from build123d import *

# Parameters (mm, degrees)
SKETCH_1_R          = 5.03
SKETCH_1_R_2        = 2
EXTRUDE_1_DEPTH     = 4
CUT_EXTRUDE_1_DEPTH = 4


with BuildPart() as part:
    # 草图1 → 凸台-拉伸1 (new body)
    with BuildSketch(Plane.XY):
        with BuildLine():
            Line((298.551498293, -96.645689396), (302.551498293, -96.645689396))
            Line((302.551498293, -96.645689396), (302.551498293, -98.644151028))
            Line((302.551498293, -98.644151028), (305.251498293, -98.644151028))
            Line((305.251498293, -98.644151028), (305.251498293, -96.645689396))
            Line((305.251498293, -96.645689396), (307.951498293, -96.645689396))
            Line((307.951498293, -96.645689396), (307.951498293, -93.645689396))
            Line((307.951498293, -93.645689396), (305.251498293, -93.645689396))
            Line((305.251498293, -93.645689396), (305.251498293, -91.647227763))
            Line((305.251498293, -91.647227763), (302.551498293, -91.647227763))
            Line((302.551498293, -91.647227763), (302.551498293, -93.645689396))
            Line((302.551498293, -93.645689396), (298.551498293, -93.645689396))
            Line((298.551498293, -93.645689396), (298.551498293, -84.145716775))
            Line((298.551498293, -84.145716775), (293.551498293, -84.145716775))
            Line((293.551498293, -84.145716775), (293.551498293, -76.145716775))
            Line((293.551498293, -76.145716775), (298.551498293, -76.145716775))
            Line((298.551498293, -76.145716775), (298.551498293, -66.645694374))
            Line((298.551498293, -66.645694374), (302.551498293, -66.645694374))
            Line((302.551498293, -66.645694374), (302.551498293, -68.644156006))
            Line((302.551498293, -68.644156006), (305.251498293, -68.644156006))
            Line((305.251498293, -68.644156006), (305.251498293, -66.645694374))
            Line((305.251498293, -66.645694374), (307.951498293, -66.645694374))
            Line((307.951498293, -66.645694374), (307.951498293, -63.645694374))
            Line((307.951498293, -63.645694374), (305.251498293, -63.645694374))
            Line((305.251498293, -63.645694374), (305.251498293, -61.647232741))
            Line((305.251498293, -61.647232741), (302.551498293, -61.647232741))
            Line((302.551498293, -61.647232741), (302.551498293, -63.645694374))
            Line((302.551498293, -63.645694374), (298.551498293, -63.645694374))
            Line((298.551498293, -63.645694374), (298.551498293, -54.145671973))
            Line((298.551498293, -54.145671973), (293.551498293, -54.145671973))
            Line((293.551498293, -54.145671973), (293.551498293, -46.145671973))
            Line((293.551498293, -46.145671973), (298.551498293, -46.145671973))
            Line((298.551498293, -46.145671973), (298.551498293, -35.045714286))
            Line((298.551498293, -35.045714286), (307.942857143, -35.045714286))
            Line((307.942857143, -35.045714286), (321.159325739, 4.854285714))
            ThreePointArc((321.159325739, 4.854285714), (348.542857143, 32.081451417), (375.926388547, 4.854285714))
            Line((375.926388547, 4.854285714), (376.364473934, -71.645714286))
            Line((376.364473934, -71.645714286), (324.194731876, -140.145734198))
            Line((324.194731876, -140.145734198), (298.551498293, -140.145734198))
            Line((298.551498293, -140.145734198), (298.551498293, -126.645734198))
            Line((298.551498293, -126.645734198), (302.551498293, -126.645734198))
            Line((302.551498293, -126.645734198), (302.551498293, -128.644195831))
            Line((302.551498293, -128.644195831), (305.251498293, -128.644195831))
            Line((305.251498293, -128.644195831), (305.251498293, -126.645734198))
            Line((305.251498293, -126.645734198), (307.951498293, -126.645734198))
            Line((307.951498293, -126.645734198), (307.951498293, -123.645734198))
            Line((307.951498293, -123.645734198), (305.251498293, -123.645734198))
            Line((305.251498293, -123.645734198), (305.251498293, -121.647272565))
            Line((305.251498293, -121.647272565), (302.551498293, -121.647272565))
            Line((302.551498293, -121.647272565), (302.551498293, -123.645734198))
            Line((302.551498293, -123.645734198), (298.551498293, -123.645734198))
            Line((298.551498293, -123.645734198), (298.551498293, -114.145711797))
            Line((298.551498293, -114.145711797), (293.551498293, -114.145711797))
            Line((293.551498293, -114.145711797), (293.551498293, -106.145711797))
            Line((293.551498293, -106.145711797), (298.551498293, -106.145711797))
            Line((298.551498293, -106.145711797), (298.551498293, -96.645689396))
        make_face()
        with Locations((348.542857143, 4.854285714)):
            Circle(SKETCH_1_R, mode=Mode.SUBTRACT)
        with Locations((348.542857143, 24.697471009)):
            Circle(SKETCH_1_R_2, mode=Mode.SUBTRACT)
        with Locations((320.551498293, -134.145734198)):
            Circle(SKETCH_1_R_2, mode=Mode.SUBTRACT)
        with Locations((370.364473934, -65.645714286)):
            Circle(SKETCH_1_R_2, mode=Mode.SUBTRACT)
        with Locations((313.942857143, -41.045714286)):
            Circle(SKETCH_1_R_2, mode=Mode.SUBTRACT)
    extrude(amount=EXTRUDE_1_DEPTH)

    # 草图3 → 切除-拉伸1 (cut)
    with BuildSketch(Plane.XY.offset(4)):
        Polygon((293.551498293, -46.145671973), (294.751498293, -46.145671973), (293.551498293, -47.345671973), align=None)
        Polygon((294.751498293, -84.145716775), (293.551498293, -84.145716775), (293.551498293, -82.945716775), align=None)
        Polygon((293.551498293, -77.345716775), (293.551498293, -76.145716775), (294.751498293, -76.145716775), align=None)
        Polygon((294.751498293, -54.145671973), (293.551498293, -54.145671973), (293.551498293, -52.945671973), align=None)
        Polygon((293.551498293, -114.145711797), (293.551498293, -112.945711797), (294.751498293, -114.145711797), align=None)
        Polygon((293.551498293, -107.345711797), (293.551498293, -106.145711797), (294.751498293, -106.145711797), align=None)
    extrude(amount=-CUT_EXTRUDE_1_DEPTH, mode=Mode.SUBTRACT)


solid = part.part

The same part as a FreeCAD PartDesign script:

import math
import FreeCAD as App
import Part
import Sketcher

V = App.Vector

doc = App.newDocument("Part")
body = doc.addObject("PartDesign::Body", "Body")

sketch1 = body.newObject("Sketcher::SketchObject", "Sketch")
sketch1.AttachmentSupport = (doc.getObject("XY_Plane"), [""])
sketch1.MapMode = "FlatFace"
sketch1.addGeometry([
    Part.LineSegment(V(302.551498, -96.645689, 0), V(298.551498, -96.645689, 0)),
    Part.LineSegment(V(298.551498, -96.645689, 0), V(298.551498, -106.145712, 0)),
    Part.LineSegment(V(298.551498, -106.145712, 0), V(293.551498, -106.145712, 0)),
    Part.LineSegment(V(293.551498, -106.145712, 0), V(293.551498, -114.145712, 0)),
    Part.LineSegment(V(293.551498, -114.145712, 0), V(298.551498, -114.145712, 0)),
    Part.LineSegment(V(298.551498, -114.145712, 0), V(298.551498, -123.645734, 0)),
    Part.LineSegment(V(298.551498, -123.645734, 0), V(302.551498, -123.645734, 0)),
    Part.LineSegment(V(302.551498, -123.645734, 0), V(302.551498, -121.647273, 0)),
    Part.LineSegment(V(302.551498, -121.647273, 0), V(305.251498, -121.647273, 0)),
    Part.LineSegment(V(305.251498, -121.647273, 0), V(305.251498, -123.645734, 0)),
    Part.LineSegment(V(305.251498, -123.645734, 0), V(307.951498, -123.645734, 0)),
    Part.LineSegment(V(307.951498, -123.645734, 0), V(307.951498, -126.645734, 0)),
    Part.LineSegment(V(307.951498, -126.645734, 0), V(305.251498, -126.645734, 0)),
    Part.LineSegment(V(305.251498, -126.645734, 0), V(305.251498, -128.644196, 0)),
    Part.LineSegment(V(305.251498, -128.644196, 0), V(302.551498, -128.644196, 0)),
    Part.LineSegment(V(302.551498, -128.644196, 0), V(302.551498, -126.645734, 0)),
    Part.LineSegment(V(302.551498, -126.645734, 0), V(298.551498, -126.645734, 0)),
    Part.LineSegment(V(298.551498, -126.645734, 0), V(298.551498, -140.145734, 0)),
    Part.LineSegment(V(298.551498, -140.145734, 0), V(324.194732, -140.145734, 0)),
    Part.LineSegment(V(324.194732, -140.145734, 0), V(376.364474, -71.645714, 0)),
    Part.LineSegment(V(376.364474, -71.645714, 0), V(375.926389, 4.854286, 0)),
    Part.ArcOfCircle(Part.Circle(V(348.542857, 4.697471, 0), V(0, 0, 1), 27.38398), math.radians(0.328107), math.radians(179.671893)),
    Part.LineSegment(V(321.159326, 4.854286, 0), V(307.942857, -35.045714, 0)),
    Part.LineSegment(V(307.942857, -35.045714, 0), V(298.551498, -35.045714, 0)),
    Part.LineSegment(V(298.551498, -35.045714, 0), V(298.551498, -46.145672, 0)),
    Part.LineSegment(V(298.551498, -46.145672, 0), V(293.551498, -46.145672, 0)),
    Part.LineSegment(V(293.551498, -46.145672, 0), V(293.551498, -54.145672, 0)),
    Part.LineSegment(V(293.551498, -54.145672, 0), V(298.551498, -54.145672, 0)),
    Part.LineSegment(V(298.551498, -54.145672, 0), V(298.551498, -63.645694, 0)),
    Part.LineSegment(V(298.551498, -63.645694, 0), V(302.551498, -63.645694, 0)),
    Part.LineSegment(V(302.551498, -63.645694, 0), V(302.551498, -61.647233, 0)),
    Part.LineSegment(V(302.551498, -61.647233, 0), V(305.251498, -61.647233, 0)),
    Part.LineSegment(V(305.251498, -61.647233, 0), V(305.251498, -63.645694, 0)),
    Part.LineSegment(V(305.251498, -63.645694, 0), V(307.951498, -63.645694, 0)),
    Part.LineSegment(V(307.951498, -63.645694, 0), V(307.951498, -66.645694, 0)),
    Part.LineSegment(V(307.951498, -66.645694, 0), V(305.251498, -66.645694, 0)),
    Part.LineSegment(V(305.251498, -66.645694, 0), V(305.251498, -68.644156, 0)),
    Part.LineSegment(V(305.251498, -68.644156, 0), V(302.551498, -68.644156, 0)),
    Part.LineSegment(V(302.551498, -68.644156, 0), V(302.551498, -66.645694, 0)),
    Part.LineSegment(V(302.551498, -66.645694, 0), V(298.551498, -66.645694, 0)),
    Part.LineSegment(V(298.551498, -66.645694, 0), V(298.551498, -76.145717, 0)),
    Part.LineSegment(V(298.551498, -76.145717, 0), V(293.551498, -76.145717, 0)),
    Part.LineSegment(V(293.551498, -76.145717, 0), V(293.551498, -84.145717, 0)),
    Part.LineSegment(V(293.551498, -84.145717, 0), V(298.551498, -84.145717, 0)),
    Part.LineSegment(V(298.551498, -84.145717, 0), V(298.551498, -93.645689, 0)),
    Part.LineSegment(V(298.551498, -93.645689, 0), V(302.551498, -93.645689, 0)),
    Part.LineSegment(V(302.551498, -93.645689, 0), V(302.551498, -91.647228, 0)),
    Part.LineSegment(V(302.551498, -91.647228, 0), V(305.251498, -91.647228, 0)),
    Part.LineSegment(V(305.251498, -91.647228, 0), V(305.251498, -93.645689, 0)),
    Part.LineSegment(V(305.251498, -93.645689, 0), V(307.951498, -93.645689, 0)),
    Part.LineSegment(V(307.951498, -93.645689, 0), V(307.951498, -96.645689, 0)),
    Part.LineSegment(V(307.951498, -96.645689, 0), V(305.251498, -96.645689, 0)),
    Part.LineSegment(V(305.251498, -96.645689, 0), V(305.251498, -98.644151, 0)),
    Part.LineSegment(V(305.251498, -98.644151, 0), V(302.551498, -98.644151, 0)),
    Part.LineSegment(V(302.551498, -98.644151, 0), V(302.551498, -96.645689, 0)),
    Part.Circle(V(370.364474, -65.645714, 0), V(0, 0, 1), 2),
    Part.Circle(V(320.551498, -134.145734, 0), V(0, 0, 1), 2),
    Part.Circle(V(348.542857, 4.854286, 0), V(0, 0, 1), 5.03),
    Part.Circle(V(348.542857, 24.697471, 0), V(0, 0, 1), 2),
    Part.Circle(V(313.942857, -41.045714, 0), V(0, 0, 1), 2),
], False)
sketch1.addConstraint([
    Sketcher.Constraint("Coincident", 0, 2, 1, 1),
    Sketcher.Constraint("Coincident", 1, 2, 2, 1),
    Sketcher.Constraint("Coincident", 2, 2, 3, 1),
    Sketcher.Constraint("Coincident", 3, 2, 4, 1),
    Sketcher.Constraint("Coincident", 4, 2, 5, 1),
    Sketcher.Constraint("Coincident", 5, 2, 6, 1),
    Sketcher.Constraint("Coincident", 6, 2, 7, 1),
    Sketcher.Constraint("Coincident", 7, 2, 8, 1),
    Sketcher.Constraint("Coincident", 8, 2, 9, 1),
    Sketcher.Constraint("Coincident", 9, 2, 10, 1),
    Sketcher.Constraint("Coincident", 10, 2, 11, 1),
    Sketcher.Constraint("Coincident", 11, 2, 12, 1),
    Sketcher.Constraint("Coincident", 12, 2, 13, 1),
    Sketcher.Constraint("Coincident", 13, 2, 14, 1),
    Sketcher.Constraint("Coincident", 14, 2, 15, 1),
    Sketcher.Constraint("Coincident", 15, 2, 16, 1),
    Sketcher.Constraint("Coincident", 16, 2, 17, 1),
    Sketcher.Constraint("Coincident", 17, 2, 18, 1),
    Sketcher.Constraint("Coincident", 18, 2, 19, 1),
    Sketcher.Constraint("Coincident", 19, 2, 20, 1),
    Sketcher.Constraint("Tangent", 20, 2, 21, 1),
    Sketcher.Constraint("Coincident", 21, 2, 22, 1),
    Sketcher.Constraint("Coincident", 22, 2, 23, 1),
    Sketcher.Constraint("Coincident", 23, 2, 24, 1),
    Sketcher.Constraint("Coincident", 24, 2, 25, 1),
    Sketcher.Constraint("Coincident", 25, 2, 26, 1),
    Sketcher.Constraint("Coincident", 26, 2, 27, 1),
    Sketcher.Constraint("Coincident", 27, 2, 28, 1),
    Sketcher.Constraint("Coincident", 28, 2, 29, 1),
    Sketcher.Constraint("Coincident", 29, 2, 30, 1),
    Sketcher.Constraint("Coincident", 30, 2, 31, 1),
    Sketcher.Constraint("Coincident", 31, 2, 32, 1),
    Sketcher.Constraint("Coincident", 32, 2, 33, 1),
    Sketcher.Constraint("Coincident", 33, 2, 34, 1),
    Sketcher.Constraint("Coincident", 34, 2, 35, 1),
    Sketcher.Constraint("Coincident", 35, 2, 36, 1),
    Sketcher.Constraint("Coincident", 36, 2, 37, 1),
    Sketcher.Constraint("Coincident", 37, 2, 38, 1),
    Sketcher.Constraint("Coincident", 38, 2, 39, 1),
    Sketcher.Constraint("Coincident", 39, 2, 40, 1),
    Sketcher.Constraint("Coincident", 40, 2, 41, 1),
    Sketcher.Constraint("Coincident", 41, 2, 42, 1),
    Sketcher.Constraint("Coincident", 42, 2, 43, 1),
    Sketcher.Constraint("Coincident", 43, 2, 44, 1),
    Sketcher.Constraint("Coincident", 44, 2, 45, 1),
    Sketcher.Constraint("Coincident", 45, 2, 46, 1),
    Sketcher.Constraint("Coincident", 46, 2, 47, 1),
    Sketcher.Constraint("Coincident", 47, 2, 48, 1),
    Sketcher.Constraint("Coincident", 48, 2, 49, 1),
    Sketcher.Constraint("Coincident", 49, 2, 50, 1),
    Sketcher.Constraint("Coincident", 50, 2, 51, 1),
    Sketcher.Constraint("Coincident", 51, 2, 52, 1),
    Sketcher.Constraint("Coincident", 52, 2, 53, 1),
    Sketcher.Constraint("Coincident", 53, 2, 54, 1),
    Sketcher.Constraint("Coincident", 54, 2, 0, 1),
    Sketcher.Constraint("Horizontal", 0),
    Sketcher.Constraint("Vertical", 1),
    Sketcher.Constraint("Horizontal", 2),
    Sketcher.Constraint("Vertical", 3),
    Sketcher.Constraint("Horizontal", 4),
    Sketcher.Constraint("Vertical", 5),
    Sketcher.Constraint("Horizontal", 6),
    Sketcher.Constraint("Vertical", 7),
    Sketcher.Constraint("Horizontal", 8),
    Sketcher.Constraint("Vertical", 9),
    Sketcher.Constraint("Horizontal", 10),
    Sketcher.Constraint("Vertical", 11),
    Sketcher.Constraint("Horizontal", 12),
    Sketcher.Constraint("Vertical", 13),
    Sketcher.Constraint("Horizontal", 14),
    Sketcher.Constraint("Vertical", 15),
    Sketcher.Constraint("Horizontal", 16),
    Sketcher.Constraint("Vertical", 17),
    Sketcher.Constraint("Horizontal", 18),
    Sketcher.Constraint("Horizontal", 23),
    Sketcher.Constraint("Vertical", 24),
    Sketcher.Constraint("Horizontal", 25),
    Sketcher.Constraint("Vertical", 26),
    Sketcher.Constraint("Horizontal", 27),
    Sketcher.Constraint("Vertical", 28),
    Sketcher.Constraint("Horizontal", 29),
    Sketcher.Constraint("Vertical", 30),
    Sketcher.Constraint("Horizontal", 31),
    Sketcher.Constraint("Vertical", 32),
    Sketcher.Constraint("Horizontal", 33),
    Sketcher.Constraint("Vertical", 34),
    Sketcher.Constraint("Horizontal", 35),
    Sketcher.Constraint("Vertical", 36),
    Sketcher.Constraint("Horizontal", 37),
    Sketcher.Constraint("Vertical", 38),
    Sketcher.Constraint("Horizontal", 39),
    Sketcher.Constraint("Vertical", 40),
    Sketcher.Constraint("Horizontal", 41),
    Sketcher.Constraint("Vertical", 42),
    Sketcher.Constraint("Horizontal", 43),
    Sketcher.Constraint("Vertical", 44),
    Sketcher.Constraint("Horizontal", 45),
    Sketcher.Constraint("Vertical", 46),
    Sketcher.Constraint("Horizontal", 47),
    Sketcher.Constraint("Vertical", 48),
    Sketcher.Constraint("Horizontal", 49),
    Sketcher.Constraint("Vertical", 50),
    Sketcher.Constraint("Horizontal", 51),
    Sketcher.Constraint("Vertical", 52),
    Sketcher.Constraint("Horizontal", 53),
    Sketcher.Constraint("Vertical", 54),
    Sketcher.Constraint("Equal", 55, 56),
    Sketcher.Constraint("Equal", 56, 58),
    Sketcher.Constraint("Equal", 58, 59),
    Sketcher.Constraint("Horizontal", 6, 2, 9, 2),
    Sketcher.Constraint("Horizontal", 12, 2, 15, 2),
    Sketcher.Constraint("Horizontal", 57, 3, 20, 2),
    Sketcher.Constraint("Horizontal", 20, 2, 21, 2),
    Sketcher.Constraint("Horizontal", 29, 2, 32, 2),
    Sketcher.Constraint("Horizontal", 35, 2, 38, 2),
    Sketcher.Constraint("Horizontal", 45, 2, 48, 2),
    Sketcher.Constraint("Horizontal", 0, 2, 50, 2),
    Sketcher.Constraint("Vertical", 21, 3, 57, 3),
    Sketcher.Constraint("Vertical", 57, 3, 58, 3),
    Sketcher.Constraint("Vertical", 1, 2, 4, 2),
    Sketcher.Constraint("Vertical", 9, 2, 12, 2),
    Sketcher.Constraint("Vertical", 7, 2, 14, 2),
    Sketcher.Constraint("Vertical", 5, 2, 16, 2),
    Sketcher.Constraint("Vertical", 17, 2, 23, 2),
    Sketcher.Constraint("Vertical", 3, 2, 25, 2),
    Sketcher.Constraint("Vertical", 24, 2, 27, 2),
    Sketcher.Constraint("Vertical", 15, 2, 29, 2),
    Sketcher.Constraint("Vertical", 13, 2, 31, 2),
    Sketcher.Constraint("Vertical", 11, 2, 33, 2),
    Sketcher.Constraint("Vertical", 32, 2, 35, 2),
    Sketcher.Constraint("Vertical", 30, 2, 37, 2),
    Sketcher.Constraint("Vertical", 28, 2, 39, 2),
    Sketcher.Constraint("Vertical", 26, 2, 41, 2),
    Sketcher.Constraint("Vertical", 40, 2, 43, 2),
    Sketcher.Constraint("Vertical", 38, 2, 45, 2),
    Sketcher.Constraint("Vertical", 36, 2, 47, 2),
    Sketcher.Constraint("Vertical", 34, 2, 49, 2),
    Sketcher.Constraint("Vertical", 48, 2, 51, 2),
    Sketcher.Constraint("Vertical", 46, 2, 53, 2),
    Sketcher.Constraint("Equal", 8, 10),
    Sketcher.Constraint("Equal", 1, 5),
    Sketcher.Constraint("Equal", 9, 13),
    Sketcher.Constraint("Equal", 3, 26),
    Sketcher.Constraint("Equal", 5, 28),
    Sketcher.Constraint("Equal", 15, 30),
    Sketcher.Constraint("Equal", 11, 34),
    Sketcher.Constraint("Equal", 32, 36),
    Sketcher.Constraint("Equal", 28, 40),
    Sketcher.Constraint("Equal", 26, 42),
    Sketcher.Constraint("Equal", 38, 46),
    Sketcher.Constraint("Equal", 34, 50),
    Sketcher.Constraint("Equal", 48, 52),
    Sketcher.Constraint("Diameter", 55, 4.0),
    Sketcher.Constraint("Diameter", 57, 10.06),
    Sketcher.Constraint("DistanceX", 0, 2, 0, 1, 4.0),
    Sketcher.Constraint("DistanceX", 2, 2, 2, 1, 5.0),
    Sketcher.Constraint("DistanceY", 3, 2, 3, 1, 8.0),
    Sketcher.Constraint("DistanceY", 11, 2, 11, 1, 3.0),
    Sketcher.Constraint("DistanceX", 8, 1, 8, 2, 2.7),
    Sketcher.Constraint("DistanceY", 17, 2, 17, 1, 13.5),
    Sketcher.Constraint("Radius", 21, 27.38398),
    Sketcher.Constraint("DistanceX", 23, 2, 23, 1, 9.391359),
    Sketcher.Constraint("DistanceY", 7, 1, 7, 2, 1.998462),
    Sketcher.Constraint("DistanceX", -1, 1, 56, 3, 320.551498),
    Sketcher.Constraint("DistanceX", -1, 1, 0, 2, 298.551498),
    Sketcher.Constraint("Distance", 19, 86.104208),
    Sketcher.Constraint("DistanceX", 18, 1, 18, 2, 25.643234),
    Sketcher.Constraint("DistanceY", 1, 2, 1, 1, 9.500022),
    Sketcher.Constraint("DistanceY", 24, 2, 24, 1, 11.099958),
    Sketcher.Constraint("DistanceY", 44, 2, 44, 1, 9.499973),
    Sketcher.Constraint("DistanceY", -1, 1, 21, 3, 4.697471),
    Sketcher.Constraint("DistanceY", -1, 1, 58, 3, 24.697471),
    Sketcher.Constraint("DistanceY", 0, 2, -1, 1, 96.645689),
    Sketcher.Constraint("DistanceX", -1, 1, 20, 2, 375.926389),
    Sketcher.Constraint("Distance", 20, 76.501254),
    Sketcher.Constraint("DistanceX", -1, 1, 55, 3, 370.364474),
    Sketcher.Constraint("DistanceY", 55, 3, -1, 1, 65.645714),
    Sketcher.Constraint("DistanceY", 56, 3, -1, 1, 134.145734),
    Sketcher.Constraint("DistanceX", -1, 1, 59, 3, 313.942857),
    Sketcher.Constraint("DistanceY", 59, 3, -1, 1, 41.045714),
])
pad1 = body.newObject("PartDesign::Pad", "Pad")
pad1.Profile = sketch1
pad1.Length = 4

sketch2 = body.newObject("Sketcher::SketchObject", "Sketch001")
sketch2.AttachmentSupport = (doc.getObject("XY_Plane"), [""])
sketch2.MapMode = "FlatFace"
sketch2.AttachmentOffset = App.Placement(V(0, 0, 4), App.Rotation())
sketch2.addGeometry([
    Part.LineSegment(V(294.751498, -46.145672, 0), V(293.551498, -46.145672, 0)),
    Part.LineSegment(V(293.551498, -46.145672, 0), V(293.551498, -47.345672, 0)),
    Part.LineSegment(V(293.551498, -47.345672, 0), V(294.751498, -46.145672, 0)),
    Part.LineSegment(V(293.551498, -84.145717, 0), V(294.751498, -84.145717, 0)),
    Part.LineSegment(V(294.751498, -84.145717, 0), V(293.551498, -82.945717, 0)),
    Part.LineSegment(V(293.551498, -82.945717, 0), V(293.551498, -84.145717, 0)),
    Part.LineSegment(V(293.551498, -76.145717, 0), V(293.551498, -77.345717, 0)),
    Part.LineSegment(V(293.551498, -77.345717, 0), V(294.751498, -76.145717, 0)),
    Part.LineSegment(V(294.751498, -76.145717, 0), V(293.551498, -76.145717, 0)),
    Part.LineSegment(V(293.551498, -54.145672, 0), V(294.751498, -54.145672, 0)),
    Part.LineSegment(V(294.751498, -54.145672, 0), V(293.551498, -52.945672, 0)),
    Part.LineSegment(V(293.551498, -52.945672, 0), V(293.551498, -54.145672, 0)),
    Part.LineSegment(V(293.551498, -112.945712, 0), V(293.551498, -114.145712, 0)),
    Part.LineSegment(V(293.551498, -114.145712, 0), V(294.751498, -114.145712, 0)),
    Part.LineSegment(V(294.751498, -114.145712, 0), V(293.551498, -112.945712, 0)),
    Part.LineSegment(V(293.551498, -106.145712, 0), V(293.551498, -107.345712, 0)),
    Part.LineSegment(V(293.551498, -107.345712, 0), V(294.751498, -106.145712, 0)),
    Part.LineSegment(V(294.751498, -106.145712, 0), V(293.551498, -106.145712, 0)),
], False)
sketch2.addConstraint([
    Sketcher.Constraint("Coincident", 0, 2, 1, 1),
    Sketcher.Constraint("Coincident", 1, 2, 2, 1),
    Sketcher.Constraint("Coincident", 2, 2, 0, 1),
    Sketcher.Constraint("Coincident", 3, 2, 4, 1),
    Sketcher.Constraint("Coincident", 4, 2, 5, 1),
    Sketcher.Constraint("Coincident", 5, 2, 3, 1),
    Sketcher.Constraint("Coincident", 6, 2, 7, 1),
    Sketcher.Constraint("Coincident", 7, 2, 8, 1),
    Sketcher.Constraint("Coincident", 8, 2, 6, 1),
    Sketcher.Constraint("Coincident", 9, 2, 10, 1),
    Sketcher.Constraint("Coincident", 10, 2, 11, 1),
    Sketcher.Constraint("Coincident", 11, 2, 9, 1),
    Sketcher.Constraint("Coincident", 12, 2, 13, 1),
    Sketcher.Constraint("Coincident", 13, 2, 14, 1),
    Sketcher.Constraint("Coincident", 14, 2, 12, 1),
    Sketcher.Constraint("Coincident", 15, 2, 16, 1),
    Sketcher.Constraint("Coincident", 16, 2, 17, 1),
    Sketcher.Constraint("Coincident", 17, 2, 15, 1),
    Sketcher.Constraint("Horizontal", 0),
    Sketcher.Constraint("Vertical", 1),
    Sketcher.Constraint("Horizontal", 3),
    Sketcher.Constraint("Vertical", 5),
    Sketcher.Constraint("Vertical", 6),
    Sketcher.Constraint("Horizontal", 8),
    Sketcher.Constraint("Horizontal", 9),
    Sketcher.Constraint("Vertical", 11),
    Sketcher.Constraint("Vertical", 12),
    Sketcher.Constraint("Horizontal", 13),
    Sketcher.Constraint("Vertical", 15),
    Sketcher.Constraint("Horizontal", 17),
    Sketcher.Constraint("Perpendicular", 2, 4),
    Sketcher.Constraint("Perpendicular", 4, 7),
    Sketcher.Constraint("Perpendicular", 7, 10),
    Sketcher.Constraint("Parallel", 10, 14),
    Sketcher.Constraint("Perpendicular", 14, 16),
    Sketcher.Constraint("Vertical", 2, 2, 3, 2),
    Sketcher.Constraint("Vertical", 1, 2, 4, 2),
    Sketcher.Constraint("Vertical", 5, 2, 6, 2),
    Sketcher.Constraint("Vertical", 3, 2, 7, 2),
    Sketcher.Constraint("Vertical", 7, 2, 9, 2),
    Sketcher.Constraint("Vertical", 8, 2, 10, 2),
    Sketcher.Constraint("Vertical", 11, 2, 12, 2),
    Sketcher.Constraint("Vertical", 9, 2, 13, 2),
    Sketcher.Constraint("Vertical", 14, 2, 15, 2),
    Sketcher.Constraint("Vertical", 13, 2, 16, 2),
    Sketcher.Constraint("Equal", 17, 1),
    Sketcher.Constraint("DistanceX", 0, 2, 0, 1, 1.2),
    Sketcher.Constraint("DistanceY", 3, 2, 7, 2, 8.0),
    Sketcher.Constraint("DistanceY", 9, 2, 2, 2, 8.0),
    Sketcher.Constraint("DistanceY", 13, 2, 16, 2, 8.0),
    Sketcher.Constraint("DistanceX", -1, 1, 0, 2, 293.551498),
    Sketcher.Constraint("DistanceY", 0, 2, -1, 1, 46.145672),
    Sketcher.Constraint("DistanceY", 12, 2, -1, 1, 114.145712),
    Sketcher.Constraint("DistanceY", 3, 2, -1, 1, 84.145717),
])
pocket1 = body.newObject("PartDesign::Pocket", "Pocket")
pocket1.Profile = sketch2
pocket1.Length = 4

doc.recompute()
